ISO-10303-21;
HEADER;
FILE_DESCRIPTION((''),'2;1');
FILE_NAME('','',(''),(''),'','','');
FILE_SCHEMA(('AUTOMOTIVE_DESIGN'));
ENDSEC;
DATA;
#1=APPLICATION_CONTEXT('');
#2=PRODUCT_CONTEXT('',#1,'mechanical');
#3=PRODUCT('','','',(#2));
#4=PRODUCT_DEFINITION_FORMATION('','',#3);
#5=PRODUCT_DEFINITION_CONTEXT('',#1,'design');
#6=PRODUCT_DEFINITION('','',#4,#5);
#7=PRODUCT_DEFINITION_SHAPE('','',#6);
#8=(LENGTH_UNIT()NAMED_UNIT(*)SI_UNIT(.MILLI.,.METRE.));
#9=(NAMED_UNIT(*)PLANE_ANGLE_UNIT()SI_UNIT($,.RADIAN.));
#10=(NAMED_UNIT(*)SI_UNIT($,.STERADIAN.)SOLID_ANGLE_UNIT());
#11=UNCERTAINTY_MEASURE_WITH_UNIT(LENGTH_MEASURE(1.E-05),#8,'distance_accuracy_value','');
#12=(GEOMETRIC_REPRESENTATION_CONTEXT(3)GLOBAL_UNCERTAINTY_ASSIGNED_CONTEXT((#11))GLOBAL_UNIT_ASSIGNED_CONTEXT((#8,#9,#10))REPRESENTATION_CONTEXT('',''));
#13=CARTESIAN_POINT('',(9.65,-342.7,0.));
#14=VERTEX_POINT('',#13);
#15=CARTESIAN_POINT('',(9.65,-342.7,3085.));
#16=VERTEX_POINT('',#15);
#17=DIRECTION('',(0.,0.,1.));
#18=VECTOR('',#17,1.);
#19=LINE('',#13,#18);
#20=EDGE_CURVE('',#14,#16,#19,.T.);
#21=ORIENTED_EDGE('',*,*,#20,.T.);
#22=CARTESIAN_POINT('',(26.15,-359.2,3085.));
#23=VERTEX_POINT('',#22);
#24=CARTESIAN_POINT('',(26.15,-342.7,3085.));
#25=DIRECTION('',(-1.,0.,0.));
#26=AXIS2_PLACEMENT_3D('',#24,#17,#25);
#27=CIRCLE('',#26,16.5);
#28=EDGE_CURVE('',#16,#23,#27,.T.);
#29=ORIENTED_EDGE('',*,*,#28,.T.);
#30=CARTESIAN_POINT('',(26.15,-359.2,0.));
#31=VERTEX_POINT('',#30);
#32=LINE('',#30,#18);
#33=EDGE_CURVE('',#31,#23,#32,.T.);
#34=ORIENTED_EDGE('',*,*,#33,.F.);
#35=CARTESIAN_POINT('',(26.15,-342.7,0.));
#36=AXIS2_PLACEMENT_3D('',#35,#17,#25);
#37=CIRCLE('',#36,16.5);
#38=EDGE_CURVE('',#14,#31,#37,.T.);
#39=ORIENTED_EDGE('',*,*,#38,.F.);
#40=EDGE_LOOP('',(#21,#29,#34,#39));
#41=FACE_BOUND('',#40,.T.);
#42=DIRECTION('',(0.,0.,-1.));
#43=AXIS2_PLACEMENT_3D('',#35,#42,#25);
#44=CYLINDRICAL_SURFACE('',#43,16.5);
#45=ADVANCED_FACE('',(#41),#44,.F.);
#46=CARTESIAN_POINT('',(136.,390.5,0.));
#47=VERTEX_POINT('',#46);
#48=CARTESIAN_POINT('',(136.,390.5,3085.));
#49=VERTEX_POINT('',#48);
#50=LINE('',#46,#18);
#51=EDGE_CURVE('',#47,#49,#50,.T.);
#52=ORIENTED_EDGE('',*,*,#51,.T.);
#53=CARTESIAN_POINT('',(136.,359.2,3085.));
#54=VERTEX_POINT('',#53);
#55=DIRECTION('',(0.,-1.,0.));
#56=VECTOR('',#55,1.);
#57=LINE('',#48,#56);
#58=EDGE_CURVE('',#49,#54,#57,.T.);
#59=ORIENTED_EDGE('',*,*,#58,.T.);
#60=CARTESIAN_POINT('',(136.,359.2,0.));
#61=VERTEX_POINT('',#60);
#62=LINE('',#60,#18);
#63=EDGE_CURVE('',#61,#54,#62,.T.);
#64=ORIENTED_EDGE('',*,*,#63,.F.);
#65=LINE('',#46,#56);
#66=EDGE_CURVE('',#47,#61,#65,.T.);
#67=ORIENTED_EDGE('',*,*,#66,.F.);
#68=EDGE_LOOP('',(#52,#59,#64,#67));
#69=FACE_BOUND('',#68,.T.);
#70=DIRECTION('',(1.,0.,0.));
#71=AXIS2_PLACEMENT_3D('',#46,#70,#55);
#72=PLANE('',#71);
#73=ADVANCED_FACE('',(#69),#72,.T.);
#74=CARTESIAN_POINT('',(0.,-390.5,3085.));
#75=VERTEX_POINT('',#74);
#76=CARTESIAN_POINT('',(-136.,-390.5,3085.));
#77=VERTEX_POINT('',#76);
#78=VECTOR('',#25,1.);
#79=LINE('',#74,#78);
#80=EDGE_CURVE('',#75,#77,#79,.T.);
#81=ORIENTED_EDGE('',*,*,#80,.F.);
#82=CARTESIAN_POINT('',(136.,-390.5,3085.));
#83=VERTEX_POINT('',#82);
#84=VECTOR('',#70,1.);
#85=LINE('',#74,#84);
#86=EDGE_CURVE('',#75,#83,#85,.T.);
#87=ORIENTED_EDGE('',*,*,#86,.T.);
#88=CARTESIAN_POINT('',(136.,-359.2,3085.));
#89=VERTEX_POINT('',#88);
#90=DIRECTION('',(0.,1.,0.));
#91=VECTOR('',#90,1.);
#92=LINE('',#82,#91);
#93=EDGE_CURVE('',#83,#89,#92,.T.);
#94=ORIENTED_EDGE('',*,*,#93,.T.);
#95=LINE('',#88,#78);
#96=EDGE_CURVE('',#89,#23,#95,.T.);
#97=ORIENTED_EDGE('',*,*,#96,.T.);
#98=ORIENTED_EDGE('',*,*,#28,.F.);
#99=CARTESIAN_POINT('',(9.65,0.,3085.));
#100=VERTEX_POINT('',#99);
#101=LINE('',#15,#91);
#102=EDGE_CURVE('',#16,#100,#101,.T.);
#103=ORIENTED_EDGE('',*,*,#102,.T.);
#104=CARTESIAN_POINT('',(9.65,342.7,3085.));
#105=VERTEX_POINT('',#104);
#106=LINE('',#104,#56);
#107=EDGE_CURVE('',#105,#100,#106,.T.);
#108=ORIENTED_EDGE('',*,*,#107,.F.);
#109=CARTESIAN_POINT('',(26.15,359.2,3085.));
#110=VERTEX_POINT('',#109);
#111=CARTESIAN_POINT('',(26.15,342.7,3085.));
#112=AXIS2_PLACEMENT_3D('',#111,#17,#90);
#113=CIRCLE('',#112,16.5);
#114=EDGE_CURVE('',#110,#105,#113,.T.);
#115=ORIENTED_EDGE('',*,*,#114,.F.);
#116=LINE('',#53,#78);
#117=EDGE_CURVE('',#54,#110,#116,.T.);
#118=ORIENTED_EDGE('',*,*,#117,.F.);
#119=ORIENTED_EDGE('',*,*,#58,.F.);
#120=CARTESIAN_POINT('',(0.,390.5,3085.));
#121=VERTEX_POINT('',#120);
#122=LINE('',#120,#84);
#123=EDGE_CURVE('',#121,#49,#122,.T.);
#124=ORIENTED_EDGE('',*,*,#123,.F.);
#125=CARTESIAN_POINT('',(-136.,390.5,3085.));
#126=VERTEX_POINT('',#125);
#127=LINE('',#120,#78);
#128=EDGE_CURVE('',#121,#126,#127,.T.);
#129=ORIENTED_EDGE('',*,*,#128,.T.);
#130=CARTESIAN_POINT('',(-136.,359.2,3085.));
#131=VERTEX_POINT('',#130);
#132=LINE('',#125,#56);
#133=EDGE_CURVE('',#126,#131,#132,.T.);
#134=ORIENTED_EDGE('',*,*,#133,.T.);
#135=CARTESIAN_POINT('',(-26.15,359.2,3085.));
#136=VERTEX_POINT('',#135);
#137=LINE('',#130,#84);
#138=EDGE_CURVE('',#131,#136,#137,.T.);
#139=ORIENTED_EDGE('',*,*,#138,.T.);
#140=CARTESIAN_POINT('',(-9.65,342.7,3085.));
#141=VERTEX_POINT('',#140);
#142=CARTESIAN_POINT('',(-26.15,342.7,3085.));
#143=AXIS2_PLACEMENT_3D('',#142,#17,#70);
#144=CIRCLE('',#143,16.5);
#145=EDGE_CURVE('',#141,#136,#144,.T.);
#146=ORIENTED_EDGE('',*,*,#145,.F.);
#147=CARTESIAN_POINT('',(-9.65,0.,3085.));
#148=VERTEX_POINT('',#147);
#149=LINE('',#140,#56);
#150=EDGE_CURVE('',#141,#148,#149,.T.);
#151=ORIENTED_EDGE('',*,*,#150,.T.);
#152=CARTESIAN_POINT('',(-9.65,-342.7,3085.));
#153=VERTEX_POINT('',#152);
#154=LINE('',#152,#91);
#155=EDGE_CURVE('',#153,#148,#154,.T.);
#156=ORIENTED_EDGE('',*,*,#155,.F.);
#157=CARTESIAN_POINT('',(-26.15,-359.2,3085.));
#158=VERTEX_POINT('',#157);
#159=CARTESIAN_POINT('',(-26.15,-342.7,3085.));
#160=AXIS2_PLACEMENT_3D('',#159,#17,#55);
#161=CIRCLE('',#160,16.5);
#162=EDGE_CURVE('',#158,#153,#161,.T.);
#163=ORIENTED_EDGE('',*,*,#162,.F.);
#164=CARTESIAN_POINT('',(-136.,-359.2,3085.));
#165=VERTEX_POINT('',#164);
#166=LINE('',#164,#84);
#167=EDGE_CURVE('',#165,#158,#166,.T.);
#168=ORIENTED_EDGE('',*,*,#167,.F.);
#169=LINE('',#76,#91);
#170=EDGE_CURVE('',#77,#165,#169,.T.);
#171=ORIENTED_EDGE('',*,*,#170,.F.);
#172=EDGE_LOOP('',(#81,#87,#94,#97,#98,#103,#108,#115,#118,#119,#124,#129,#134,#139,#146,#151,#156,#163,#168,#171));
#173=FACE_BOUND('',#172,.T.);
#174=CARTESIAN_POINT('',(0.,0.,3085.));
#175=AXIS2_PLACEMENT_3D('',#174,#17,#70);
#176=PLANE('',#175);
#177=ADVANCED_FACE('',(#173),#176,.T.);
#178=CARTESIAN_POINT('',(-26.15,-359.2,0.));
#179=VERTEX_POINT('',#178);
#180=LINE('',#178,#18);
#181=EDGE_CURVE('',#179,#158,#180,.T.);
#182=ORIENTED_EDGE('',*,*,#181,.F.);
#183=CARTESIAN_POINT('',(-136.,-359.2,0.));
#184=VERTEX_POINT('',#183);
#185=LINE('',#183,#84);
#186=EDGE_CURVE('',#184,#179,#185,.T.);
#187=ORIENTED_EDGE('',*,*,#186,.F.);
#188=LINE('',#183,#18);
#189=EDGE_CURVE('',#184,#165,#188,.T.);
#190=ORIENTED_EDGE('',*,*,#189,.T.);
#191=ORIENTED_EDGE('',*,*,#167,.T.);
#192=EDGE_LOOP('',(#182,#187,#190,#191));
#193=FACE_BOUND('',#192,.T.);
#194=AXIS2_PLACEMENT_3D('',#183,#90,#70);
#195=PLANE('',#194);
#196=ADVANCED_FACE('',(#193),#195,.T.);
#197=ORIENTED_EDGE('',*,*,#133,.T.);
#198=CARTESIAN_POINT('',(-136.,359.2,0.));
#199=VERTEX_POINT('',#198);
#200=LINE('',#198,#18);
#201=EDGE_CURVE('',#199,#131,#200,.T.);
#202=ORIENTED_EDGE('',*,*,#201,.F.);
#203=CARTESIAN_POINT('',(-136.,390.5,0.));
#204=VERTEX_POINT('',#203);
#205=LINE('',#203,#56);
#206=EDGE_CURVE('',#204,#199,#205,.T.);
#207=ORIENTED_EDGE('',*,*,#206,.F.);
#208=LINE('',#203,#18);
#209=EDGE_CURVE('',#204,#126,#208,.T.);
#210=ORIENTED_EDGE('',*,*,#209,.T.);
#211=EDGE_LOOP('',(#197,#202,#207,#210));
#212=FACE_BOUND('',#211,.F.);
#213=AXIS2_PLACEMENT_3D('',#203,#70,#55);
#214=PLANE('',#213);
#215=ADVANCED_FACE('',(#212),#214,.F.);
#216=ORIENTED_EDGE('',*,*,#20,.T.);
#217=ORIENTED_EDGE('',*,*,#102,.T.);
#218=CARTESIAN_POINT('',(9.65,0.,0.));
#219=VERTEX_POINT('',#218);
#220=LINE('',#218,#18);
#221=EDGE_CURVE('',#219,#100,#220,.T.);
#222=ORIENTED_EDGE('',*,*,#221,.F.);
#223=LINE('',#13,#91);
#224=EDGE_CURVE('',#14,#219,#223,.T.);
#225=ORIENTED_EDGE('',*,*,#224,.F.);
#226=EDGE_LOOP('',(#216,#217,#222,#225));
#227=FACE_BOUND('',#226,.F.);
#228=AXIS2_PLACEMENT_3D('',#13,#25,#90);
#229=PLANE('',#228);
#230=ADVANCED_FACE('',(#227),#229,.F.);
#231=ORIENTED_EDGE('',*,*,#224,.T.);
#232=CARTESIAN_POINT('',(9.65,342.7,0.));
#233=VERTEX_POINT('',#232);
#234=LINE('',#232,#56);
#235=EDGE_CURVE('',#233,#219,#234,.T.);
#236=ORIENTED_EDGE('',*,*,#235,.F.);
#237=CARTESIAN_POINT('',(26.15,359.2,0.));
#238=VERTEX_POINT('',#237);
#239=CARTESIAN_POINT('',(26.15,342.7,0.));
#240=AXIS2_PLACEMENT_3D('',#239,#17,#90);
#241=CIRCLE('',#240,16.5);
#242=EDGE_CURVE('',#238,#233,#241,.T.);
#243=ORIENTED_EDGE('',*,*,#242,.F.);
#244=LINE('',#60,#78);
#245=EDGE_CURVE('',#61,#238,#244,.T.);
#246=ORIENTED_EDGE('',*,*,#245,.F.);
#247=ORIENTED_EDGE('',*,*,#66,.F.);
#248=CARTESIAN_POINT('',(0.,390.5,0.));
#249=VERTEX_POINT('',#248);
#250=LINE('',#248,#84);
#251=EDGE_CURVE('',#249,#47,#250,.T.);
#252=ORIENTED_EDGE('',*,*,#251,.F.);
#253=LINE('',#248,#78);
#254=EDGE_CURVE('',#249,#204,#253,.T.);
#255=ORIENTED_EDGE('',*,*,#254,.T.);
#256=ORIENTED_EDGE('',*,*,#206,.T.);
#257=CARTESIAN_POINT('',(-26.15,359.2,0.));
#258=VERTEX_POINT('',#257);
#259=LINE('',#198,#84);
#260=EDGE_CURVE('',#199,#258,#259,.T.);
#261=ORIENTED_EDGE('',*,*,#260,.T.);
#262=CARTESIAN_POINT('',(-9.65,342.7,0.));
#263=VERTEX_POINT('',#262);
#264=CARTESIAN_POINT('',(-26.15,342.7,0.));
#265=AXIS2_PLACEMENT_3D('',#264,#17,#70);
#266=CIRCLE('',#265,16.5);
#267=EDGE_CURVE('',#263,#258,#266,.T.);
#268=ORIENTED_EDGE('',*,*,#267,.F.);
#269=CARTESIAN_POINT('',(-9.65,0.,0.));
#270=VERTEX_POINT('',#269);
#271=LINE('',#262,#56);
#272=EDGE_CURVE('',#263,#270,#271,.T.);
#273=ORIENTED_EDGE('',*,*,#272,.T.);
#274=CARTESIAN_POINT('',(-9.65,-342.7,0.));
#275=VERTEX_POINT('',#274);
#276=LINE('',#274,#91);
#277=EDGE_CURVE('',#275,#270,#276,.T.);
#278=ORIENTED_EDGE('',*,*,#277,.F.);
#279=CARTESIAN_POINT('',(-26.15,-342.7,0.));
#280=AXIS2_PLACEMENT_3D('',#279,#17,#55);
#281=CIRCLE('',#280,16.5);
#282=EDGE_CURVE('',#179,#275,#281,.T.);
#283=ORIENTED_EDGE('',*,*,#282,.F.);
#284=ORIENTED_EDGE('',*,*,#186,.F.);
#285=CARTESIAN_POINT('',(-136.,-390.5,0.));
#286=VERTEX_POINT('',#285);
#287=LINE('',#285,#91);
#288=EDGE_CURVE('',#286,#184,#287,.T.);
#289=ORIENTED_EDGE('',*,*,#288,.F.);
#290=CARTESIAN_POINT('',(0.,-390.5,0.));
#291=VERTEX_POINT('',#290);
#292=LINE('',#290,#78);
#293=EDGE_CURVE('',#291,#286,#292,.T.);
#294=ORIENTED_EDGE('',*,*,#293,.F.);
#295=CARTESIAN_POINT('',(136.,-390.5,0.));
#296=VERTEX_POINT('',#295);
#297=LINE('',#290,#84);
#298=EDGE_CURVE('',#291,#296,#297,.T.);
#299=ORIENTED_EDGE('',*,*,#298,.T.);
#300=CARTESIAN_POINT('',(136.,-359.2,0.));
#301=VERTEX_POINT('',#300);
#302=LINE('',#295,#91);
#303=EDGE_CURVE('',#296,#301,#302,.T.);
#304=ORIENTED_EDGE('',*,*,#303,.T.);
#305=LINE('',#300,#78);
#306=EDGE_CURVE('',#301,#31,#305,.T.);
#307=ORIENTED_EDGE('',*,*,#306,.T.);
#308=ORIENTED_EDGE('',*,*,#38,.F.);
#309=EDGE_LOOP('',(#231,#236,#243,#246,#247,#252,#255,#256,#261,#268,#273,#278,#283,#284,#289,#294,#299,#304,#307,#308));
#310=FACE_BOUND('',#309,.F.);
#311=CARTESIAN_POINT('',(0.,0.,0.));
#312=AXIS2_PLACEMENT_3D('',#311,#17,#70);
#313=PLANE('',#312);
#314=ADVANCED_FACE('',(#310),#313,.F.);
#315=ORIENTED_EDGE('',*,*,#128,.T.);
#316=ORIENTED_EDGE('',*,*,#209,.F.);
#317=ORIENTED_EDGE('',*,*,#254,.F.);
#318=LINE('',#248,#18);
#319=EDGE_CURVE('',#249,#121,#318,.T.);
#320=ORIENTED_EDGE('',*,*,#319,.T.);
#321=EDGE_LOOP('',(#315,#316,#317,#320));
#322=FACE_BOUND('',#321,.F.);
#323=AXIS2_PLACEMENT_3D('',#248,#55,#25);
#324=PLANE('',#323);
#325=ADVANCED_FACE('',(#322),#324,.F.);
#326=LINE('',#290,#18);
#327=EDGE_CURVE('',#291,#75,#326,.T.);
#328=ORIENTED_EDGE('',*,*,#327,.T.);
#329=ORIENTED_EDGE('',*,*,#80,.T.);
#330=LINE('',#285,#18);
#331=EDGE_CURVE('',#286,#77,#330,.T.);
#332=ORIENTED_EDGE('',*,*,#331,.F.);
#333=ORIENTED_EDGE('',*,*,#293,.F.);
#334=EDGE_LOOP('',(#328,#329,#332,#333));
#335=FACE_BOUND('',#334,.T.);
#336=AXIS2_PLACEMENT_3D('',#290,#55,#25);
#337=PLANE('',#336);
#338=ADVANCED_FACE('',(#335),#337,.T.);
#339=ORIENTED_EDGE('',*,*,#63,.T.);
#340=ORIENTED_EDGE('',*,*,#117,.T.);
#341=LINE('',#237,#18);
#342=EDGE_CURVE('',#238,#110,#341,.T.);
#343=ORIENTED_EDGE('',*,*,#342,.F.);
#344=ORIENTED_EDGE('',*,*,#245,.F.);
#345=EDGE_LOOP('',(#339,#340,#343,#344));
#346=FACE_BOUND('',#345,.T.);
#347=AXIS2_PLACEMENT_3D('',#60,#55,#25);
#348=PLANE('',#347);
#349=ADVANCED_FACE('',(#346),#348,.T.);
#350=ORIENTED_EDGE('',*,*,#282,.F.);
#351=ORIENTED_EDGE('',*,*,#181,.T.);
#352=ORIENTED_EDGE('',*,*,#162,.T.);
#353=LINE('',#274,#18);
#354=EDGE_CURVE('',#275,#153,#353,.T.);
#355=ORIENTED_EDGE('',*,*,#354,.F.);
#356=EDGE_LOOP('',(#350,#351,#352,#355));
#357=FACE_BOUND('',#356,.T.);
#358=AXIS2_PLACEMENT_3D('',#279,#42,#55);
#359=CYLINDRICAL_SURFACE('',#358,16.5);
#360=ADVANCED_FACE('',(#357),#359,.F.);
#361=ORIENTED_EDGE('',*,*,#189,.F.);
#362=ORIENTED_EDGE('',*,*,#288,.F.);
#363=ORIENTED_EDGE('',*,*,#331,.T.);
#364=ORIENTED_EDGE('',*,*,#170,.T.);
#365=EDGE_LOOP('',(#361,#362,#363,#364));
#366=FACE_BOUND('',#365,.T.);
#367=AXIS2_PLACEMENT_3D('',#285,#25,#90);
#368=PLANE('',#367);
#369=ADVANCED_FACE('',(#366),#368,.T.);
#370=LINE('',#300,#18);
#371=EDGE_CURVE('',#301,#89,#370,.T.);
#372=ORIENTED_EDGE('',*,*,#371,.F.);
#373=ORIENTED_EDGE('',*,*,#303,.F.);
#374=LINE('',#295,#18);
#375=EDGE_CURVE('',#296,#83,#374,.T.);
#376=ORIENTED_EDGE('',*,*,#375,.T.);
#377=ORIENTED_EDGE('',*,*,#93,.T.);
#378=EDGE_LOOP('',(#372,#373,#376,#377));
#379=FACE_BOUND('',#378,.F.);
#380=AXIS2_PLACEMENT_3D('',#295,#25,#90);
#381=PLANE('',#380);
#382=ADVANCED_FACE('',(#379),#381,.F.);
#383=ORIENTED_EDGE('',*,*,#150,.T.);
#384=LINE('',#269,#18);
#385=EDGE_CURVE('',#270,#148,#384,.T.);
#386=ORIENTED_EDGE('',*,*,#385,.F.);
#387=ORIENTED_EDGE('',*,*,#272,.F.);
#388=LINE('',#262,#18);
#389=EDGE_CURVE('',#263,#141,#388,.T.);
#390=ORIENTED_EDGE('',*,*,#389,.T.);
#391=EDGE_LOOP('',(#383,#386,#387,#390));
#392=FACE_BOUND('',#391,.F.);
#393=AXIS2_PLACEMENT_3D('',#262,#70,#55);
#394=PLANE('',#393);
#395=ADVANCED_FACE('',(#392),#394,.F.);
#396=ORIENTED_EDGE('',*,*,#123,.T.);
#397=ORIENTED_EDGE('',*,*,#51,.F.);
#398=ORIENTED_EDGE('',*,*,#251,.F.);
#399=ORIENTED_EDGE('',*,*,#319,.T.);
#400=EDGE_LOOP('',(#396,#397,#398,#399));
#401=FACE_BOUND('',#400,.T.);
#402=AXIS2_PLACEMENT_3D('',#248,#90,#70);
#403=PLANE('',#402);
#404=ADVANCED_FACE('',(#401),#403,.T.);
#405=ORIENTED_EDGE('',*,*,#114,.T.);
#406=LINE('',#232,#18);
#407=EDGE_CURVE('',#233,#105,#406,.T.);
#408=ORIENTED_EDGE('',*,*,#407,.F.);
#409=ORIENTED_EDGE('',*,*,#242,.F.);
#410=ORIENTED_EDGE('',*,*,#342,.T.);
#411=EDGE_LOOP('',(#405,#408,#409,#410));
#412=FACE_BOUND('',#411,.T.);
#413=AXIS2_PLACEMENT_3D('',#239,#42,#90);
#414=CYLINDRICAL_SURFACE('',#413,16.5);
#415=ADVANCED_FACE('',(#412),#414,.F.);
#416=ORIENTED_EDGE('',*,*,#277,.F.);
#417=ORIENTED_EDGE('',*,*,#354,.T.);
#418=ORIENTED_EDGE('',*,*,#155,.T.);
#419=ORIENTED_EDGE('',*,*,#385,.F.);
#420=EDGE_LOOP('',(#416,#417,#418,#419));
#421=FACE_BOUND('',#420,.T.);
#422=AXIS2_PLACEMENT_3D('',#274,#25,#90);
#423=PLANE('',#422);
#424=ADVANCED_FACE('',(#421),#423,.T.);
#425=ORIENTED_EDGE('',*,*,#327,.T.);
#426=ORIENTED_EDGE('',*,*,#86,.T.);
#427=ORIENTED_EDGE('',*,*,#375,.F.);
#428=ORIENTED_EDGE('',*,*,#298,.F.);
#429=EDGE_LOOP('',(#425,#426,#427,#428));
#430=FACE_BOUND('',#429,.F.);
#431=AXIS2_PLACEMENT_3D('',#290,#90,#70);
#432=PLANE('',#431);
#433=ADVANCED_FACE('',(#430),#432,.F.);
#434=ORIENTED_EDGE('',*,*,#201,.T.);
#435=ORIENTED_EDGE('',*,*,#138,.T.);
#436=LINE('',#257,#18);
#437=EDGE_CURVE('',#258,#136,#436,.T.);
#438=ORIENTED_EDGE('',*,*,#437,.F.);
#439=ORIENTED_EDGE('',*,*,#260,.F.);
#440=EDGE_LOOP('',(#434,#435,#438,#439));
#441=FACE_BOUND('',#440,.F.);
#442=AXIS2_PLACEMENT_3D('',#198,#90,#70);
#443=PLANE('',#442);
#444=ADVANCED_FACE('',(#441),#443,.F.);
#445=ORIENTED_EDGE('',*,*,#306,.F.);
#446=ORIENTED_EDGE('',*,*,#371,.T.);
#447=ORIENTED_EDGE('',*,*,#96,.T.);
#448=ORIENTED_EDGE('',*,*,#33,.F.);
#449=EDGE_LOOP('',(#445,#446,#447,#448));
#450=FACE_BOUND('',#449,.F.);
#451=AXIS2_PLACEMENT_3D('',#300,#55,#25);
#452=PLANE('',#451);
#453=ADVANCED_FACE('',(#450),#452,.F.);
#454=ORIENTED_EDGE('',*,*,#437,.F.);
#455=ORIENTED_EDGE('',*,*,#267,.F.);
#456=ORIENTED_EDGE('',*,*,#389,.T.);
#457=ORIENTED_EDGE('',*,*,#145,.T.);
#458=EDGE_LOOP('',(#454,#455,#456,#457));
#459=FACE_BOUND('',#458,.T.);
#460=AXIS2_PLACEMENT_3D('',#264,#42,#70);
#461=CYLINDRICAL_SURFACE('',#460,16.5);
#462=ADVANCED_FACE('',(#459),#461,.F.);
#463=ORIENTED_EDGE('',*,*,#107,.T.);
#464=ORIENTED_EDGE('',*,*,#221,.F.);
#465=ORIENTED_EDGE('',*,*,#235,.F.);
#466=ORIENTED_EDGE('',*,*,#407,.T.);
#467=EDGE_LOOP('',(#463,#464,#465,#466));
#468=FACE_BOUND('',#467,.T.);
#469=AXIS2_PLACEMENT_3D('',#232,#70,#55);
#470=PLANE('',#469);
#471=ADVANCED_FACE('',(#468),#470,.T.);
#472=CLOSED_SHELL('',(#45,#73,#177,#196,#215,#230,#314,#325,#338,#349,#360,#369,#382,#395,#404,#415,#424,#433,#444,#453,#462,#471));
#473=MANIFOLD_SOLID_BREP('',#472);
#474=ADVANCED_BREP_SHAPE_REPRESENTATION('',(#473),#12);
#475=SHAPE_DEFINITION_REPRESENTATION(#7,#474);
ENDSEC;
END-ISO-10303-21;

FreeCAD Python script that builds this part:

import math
import FreeCAD as App
import Part
import Sketcher

V = App.Vector

doc = App.newDocument("Part")
body = doc.addObject("PartDesign::Body", "Body")

# Sketch on XY plane
sketch1 = body.newObject("Sketcher::SketchObject", "Sketch")
sketch1.AttachmentSupport = (doc.getObject("XY_Plane"), [""])
sketch1.MapMode = "FlatFace"
sketch1.addGeometry([
    Part.LineSegment(V(-136, -359, 0), V(-136, -390, 0)),  # 0
    Part.LineSegment(V(-136, -390, 0), V(136, -390, 0)),  # 1
    Part.LineSegment(V(136, -390, 0), V(136, -359, 0)),  # 2
    Part.LineSegment(V(136, -359, 0), V(26, -359, 0)),  # 3
    Part.ArcOfCircle(Part.Circle(V(26, -343, 0), V(0, 0, 1), 16), math.radians(180), math.radians(270)),  # 4
    Part.LineSegment(V(10, -343, 0), V(10, 343, 0)),  # 5
    Part.ArcOfCircle(Part.Circle(V(26, 343, 0), V(0, 0, 1), 16), math.radians(90), math.radians(180)),  # 6
    Part.LineSegment(V(26, 359, 0), V(136, 359, 0)),  # 7
    Part.LineSegment(V(136, 359, 0), V(136, 390, 0)),  # 8
    Part.LineSegment(V(136, 390, 0), V(-136, 390, 0)),  # 9
    Part.LineSegment(V(-136, 390, 0), V(-136, 359, 0)),  # 10
    Part.LineSegment(V(-136, 359, 0), V(-26, 359, 0)),  # 11
    Part.ArcOfCircle(Part.Circle(V(-26, 343, 0), V(0, 0, 1), 16), math.radians(0), math.radians(90)),  # 12
    Part.LineSegment(V(-10, 343, 0), V(-10, -343, 0)),  # 13
    Part.ArcOfCircle(Part.Circle(V(-26, -343, 0), V(0, 0, 1), 16), math.radians(-90), math.radians(0)),  # 14
    Part.LineSegment(V(-26, -359, 0), V(-136, -359, 0)),  # 15
], False)
sketch1.addConstraint([
    Sketcher.Constraint("Coincident", 0, 2, 1, 1),
    Sketcher.Constraint("Coincident", 1, 2, 2, 1),
    Sketcher.Constraint("Coincident", 2, 2, 3, 1),
    Sketcher.Constraint("Tangent", 3, 2, 4, 2),
    Sketcher.Constraint("Tangent", 4, 1, 5, 1),
    Sketcher.Constraint("Tangent", 5, 2, 6, 2),
    Sketcher.Constraint("Tangent", 6, 1, 7, 1),
    Sketcher.Constraint("Coincident", 7, 2, 8, 1),
    Sketcher.Constraint("Coincident", 8, 2, 9, 1),
    Sketcher.Constraint("Coincident", 9, 2, 10, 1),
    Sketcher.Constraint("Coincident", 10, 2, 11, 1),
    Sketcher.Constraint("Tangent", 11, 2, 12, 2),
    Sketcher.Constraint("Tangent", 12, 1, 13, 1),
    Sketcher.Constraint("Tangent", 13, 2, 14, 2),
    Sketcher.Constraint("Tangent", 14, 1, 15, 1),
    Sketcher.Constraint("Coincident", 15, 2, 0, 1),
    Sketcher.Constraint("Vertical", 0),
    Sketcher.Constraint("Horizontal", 1),
    Sketcher.Constraint("Vertical", 2),
    Sketcher.Constraint("Horizontal", 3),
    Sketcher.Constraint("Vertical", 5),
    Sketcher.Constraint("Horizontal", 7),
    Sketcher.Constraint("Vertical", 8),
    Sketcher.Constraint("Horizontal", 9),
    Sketcher.Constraint("Vertical", 10),
    Sketcher.Constraint("Horizontal", 11),
    Sketcher.Constraint("Vertical", 13),
    Sketcher.Constraint("Horizontal", 15),
    Sketcher.Constraint("Equal", 4, 6),
    Sketcher.Constraint("Equal", 6, 12),
    Sketcher.Constraint("Equal", 12, 14),
    Sketcher.Constraint("Symmetric", 4, 3, 12, 3, -1, 1),
    Sketcher.Constraint("Symmetric", 0, 2, 8, 2, -1, 1),
    Sketcher.Constraint("Symmetric", 7, 2, 10, 2, -2),
    Sketcher.Constraint("Symmetric", 2, 2, 15, 2, -2),
    Sketcher.Constraint("Radius", 4, 16.5),
    Sketcher.Constraint("DistanceY", 0, 2, 0, 1, 31.3),
    Sketcher.Constraint("DistanceX", 0, 2, -1, 1, 136.0),
    Sketcher.Constraint("DistanceY", 0, 2, -1, 1, 390.5),
    Sketcher.Constraint("DistanceX", -1, 1, 4, 1, 9.65),
])
pad1 = body.newObject("PartDesign::Pad", "Pad")
pad1.Profile = sketch1
pad1.Length = 3085

doc.recompute()
